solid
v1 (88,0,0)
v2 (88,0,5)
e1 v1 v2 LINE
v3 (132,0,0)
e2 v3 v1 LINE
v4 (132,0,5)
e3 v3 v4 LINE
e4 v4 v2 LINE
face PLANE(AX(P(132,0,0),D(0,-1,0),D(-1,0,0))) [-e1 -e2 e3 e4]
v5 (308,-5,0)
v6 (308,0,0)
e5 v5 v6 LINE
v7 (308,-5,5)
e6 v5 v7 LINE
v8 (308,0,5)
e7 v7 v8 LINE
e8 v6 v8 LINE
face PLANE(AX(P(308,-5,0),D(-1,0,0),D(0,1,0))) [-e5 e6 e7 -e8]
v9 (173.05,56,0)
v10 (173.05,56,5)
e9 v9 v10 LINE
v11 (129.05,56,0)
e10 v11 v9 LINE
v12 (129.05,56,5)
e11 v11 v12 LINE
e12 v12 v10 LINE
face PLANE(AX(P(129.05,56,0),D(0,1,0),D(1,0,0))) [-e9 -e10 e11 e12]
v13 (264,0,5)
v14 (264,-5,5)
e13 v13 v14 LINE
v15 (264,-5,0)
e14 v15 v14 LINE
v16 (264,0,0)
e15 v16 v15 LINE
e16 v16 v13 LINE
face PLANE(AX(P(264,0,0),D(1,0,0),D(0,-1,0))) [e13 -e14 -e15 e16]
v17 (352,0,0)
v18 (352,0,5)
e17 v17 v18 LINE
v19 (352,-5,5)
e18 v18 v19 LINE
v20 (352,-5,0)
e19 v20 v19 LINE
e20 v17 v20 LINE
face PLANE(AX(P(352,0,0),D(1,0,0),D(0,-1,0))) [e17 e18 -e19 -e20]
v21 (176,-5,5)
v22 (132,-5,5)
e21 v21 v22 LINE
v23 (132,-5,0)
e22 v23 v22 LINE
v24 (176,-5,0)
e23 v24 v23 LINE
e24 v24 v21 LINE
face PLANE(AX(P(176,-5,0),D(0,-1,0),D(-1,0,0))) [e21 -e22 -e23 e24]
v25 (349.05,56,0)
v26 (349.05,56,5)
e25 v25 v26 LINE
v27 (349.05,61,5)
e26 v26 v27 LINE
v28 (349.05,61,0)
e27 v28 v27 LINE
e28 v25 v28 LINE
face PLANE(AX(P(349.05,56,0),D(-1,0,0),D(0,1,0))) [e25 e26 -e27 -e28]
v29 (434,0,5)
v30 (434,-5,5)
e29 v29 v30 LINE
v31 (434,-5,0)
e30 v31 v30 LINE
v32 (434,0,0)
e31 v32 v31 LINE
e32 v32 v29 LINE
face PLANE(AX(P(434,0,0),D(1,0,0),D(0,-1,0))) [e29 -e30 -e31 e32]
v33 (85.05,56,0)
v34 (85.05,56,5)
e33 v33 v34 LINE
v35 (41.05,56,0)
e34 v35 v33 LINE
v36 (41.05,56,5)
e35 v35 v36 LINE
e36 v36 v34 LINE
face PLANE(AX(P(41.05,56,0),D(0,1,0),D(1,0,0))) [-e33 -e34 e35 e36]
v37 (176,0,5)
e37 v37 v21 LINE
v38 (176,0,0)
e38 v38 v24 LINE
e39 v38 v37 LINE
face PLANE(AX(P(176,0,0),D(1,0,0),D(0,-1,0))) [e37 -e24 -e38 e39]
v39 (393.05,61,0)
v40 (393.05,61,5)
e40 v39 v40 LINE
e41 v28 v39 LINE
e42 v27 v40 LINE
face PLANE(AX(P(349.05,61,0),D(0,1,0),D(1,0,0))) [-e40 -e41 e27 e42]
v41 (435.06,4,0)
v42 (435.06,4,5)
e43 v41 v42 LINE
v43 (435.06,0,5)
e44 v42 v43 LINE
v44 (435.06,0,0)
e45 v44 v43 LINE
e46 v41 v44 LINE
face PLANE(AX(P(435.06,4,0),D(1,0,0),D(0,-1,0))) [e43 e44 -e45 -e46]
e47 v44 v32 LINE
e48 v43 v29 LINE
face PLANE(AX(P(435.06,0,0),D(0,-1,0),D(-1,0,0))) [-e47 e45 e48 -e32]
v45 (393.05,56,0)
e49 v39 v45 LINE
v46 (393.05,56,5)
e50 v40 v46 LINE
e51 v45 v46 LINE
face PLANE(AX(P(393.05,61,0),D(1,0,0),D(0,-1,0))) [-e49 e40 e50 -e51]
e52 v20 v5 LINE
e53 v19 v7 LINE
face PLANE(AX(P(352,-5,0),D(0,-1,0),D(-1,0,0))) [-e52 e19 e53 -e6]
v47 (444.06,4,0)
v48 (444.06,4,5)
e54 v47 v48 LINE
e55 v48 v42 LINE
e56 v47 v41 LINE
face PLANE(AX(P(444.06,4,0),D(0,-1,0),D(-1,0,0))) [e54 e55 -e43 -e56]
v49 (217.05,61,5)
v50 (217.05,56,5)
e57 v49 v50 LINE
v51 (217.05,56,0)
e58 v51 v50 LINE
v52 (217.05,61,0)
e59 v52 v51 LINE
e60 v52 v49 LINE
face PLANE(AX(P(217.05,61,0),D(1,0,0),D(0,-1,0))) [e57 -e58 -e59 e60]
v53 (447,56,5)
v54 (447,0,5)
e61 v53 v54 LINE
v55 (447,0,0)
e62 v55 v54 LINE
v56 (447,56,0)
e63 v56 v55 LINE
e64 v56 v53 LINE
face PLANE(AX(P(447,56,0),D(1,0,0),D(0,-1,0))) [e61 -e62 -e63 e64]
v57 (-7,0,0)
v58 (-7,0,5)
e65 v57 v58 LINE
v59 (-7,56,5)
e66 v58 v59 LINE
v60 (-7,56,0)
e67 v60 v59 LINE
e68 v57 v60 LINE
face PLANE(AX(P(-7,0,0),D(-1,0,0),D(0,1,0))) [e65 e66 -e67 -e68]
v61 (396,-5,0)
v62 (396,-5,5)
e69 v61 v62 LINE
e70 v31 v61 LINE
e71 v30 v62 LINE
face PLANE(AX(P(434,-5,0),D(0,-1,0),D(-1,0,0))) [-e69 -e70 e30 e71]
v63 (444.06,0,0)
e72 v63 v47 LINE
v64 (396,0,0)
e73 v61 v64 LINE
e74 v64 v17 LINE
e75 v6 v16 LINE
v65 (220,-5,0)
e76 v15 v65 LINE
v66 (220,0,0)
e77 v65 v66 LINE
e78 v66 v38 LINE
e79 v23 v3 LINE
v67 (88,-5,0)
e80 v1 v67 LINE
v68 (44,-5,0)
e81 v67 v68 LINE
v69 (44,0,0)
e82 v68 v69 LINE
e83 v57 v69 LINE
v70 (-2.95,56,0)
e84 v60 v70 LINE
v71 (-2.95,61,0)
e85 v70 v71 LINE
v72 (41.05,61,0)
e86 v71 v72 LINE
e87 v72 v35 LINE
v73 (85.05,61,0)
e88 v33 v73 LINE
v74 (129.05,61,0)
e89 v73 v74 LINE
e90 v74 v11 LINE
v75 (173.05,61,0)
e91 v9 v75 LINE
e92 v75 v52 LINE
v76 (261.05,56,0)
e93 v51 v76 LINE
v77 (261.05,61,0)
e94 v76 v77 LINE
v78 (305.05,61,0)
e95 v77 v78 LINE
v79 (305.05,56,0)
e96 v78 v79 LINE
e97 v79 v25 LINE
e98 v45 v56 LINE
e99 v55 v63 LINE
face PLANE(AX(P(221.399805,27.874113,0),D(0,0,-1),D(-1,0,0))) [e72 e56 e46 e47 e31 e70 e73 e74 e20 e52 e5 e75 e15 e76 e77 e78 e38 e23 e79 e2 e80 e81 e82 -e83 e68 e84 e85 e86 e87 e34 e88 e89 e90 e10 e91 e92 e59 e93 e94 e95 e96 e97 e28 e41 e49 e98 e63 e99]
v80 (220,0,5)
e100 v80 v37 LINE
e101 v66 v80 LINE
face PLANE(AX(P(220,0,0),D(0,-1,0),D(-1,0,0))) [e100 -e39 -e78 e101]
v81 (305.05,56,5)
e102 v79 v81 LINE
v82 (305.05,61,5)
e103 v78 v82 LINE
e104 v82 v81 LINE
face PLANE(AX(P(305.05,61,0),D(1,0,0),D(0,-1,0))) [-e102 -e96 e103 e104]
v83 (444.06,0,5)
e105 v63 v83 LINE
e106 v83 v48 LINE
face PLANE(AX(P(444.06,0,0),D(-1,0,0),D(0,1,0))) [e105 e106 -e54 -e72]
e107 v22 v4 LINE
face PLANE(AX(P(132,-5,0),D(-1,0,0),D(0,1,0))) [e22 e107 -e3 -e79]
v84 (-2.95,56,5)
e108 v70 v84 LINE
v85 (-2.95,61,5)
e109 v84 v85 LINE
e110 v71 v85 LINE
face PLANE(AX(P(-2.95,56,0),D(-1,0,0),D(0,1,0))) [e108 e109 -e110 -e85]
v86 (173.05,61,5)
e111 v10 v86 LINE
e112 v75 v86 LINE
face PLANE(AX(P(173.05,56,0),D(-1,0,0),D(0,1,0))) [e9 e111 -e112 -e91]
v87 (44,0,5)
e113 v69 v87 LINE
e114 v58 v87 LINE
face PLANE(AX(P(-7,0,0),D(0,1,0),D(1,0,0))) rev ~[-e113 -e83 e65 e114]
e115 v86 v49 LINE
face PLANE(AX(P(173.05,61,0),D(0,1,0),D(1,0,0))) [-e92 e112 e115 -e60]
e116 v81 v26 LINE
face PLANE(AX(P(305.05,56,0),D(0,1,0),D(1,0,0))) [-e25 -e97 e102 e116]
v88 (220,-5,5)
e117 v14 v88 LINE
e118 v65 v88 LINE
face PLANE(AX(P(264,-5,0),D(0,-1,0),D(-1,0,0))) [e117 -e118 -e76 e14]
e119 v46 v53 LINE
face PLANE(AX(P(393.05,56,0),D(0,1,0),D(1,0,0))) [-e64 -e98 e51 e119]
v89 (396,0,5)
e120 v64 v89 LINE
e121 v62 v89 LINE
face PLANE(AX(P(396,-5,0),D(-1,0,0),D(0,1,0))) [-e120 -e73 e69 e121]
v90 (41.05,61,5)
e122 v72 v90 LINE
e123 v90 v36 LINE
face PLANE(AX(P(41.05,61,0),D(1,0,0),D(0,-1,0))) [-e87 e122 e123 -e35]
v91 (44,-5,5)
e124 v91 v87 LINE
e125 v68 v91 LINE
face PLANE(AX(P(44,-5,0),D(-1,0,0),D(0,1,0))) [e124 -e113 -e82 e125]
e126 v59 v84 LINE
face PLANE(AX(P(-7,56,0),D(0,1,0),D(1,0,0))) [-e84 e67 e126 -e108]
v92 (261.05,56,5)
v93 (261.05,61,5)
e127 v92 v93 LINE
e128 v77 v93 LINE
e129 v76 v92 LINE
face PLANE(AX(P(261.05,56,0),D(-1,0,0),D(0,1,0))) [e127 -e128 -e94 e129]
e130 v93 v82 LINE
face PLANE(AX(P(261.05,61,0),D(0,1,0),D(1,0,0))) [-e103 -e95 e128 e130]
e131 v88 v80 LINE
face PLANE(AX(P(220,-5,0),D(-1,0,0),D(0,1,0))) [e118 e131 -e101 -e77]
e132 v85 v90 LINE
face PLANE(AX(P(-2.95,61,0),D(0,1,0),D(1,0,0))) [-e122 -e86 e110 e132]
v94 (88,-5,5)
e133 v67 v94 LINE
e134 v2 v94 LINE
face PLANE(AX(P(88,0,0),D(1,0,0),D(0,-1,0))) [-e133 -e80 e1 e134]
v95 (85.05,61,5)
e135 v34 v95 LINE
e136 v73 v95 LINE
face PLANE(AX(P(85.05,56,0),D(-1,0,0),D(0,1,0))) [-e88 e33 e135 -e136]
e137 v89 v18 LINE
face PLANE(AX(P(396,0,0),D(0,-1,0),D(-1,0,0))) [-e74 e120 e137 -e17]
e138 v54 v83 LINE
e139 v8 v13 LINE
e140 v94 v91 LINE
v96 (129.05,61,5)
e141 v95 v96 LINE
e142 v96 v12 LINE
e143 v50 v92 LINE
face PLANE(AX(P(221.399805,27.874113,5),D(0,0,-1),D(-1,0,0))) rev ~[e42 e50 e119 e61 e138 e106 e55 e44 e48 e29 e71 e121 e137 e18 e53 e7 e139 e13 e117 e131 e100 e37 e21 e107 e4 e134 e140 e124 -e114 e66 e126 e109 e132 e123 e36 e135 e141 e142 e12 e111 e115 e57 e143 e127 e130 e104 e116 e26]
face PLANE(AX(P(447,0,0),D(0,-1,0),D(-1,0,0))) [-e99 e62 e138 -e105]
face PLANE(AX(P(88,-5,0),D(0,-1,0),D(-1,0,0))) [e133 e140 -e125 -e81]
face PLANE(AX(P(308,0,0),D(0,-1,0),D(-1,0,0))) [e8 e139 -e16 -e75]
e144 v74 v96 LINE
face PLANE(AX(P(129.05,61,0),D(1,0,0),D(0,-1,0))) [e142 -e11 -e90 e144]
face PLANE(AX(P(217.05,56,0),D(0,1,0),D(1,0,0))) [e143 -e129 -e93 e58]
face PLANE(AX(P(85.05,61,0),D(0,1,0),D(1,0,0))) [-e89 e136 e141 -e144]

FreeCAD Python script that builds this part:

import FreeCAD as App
import Part
import Sketcher

V = App.Vector

doc = App.newDocument("Part")
params = doc.addObject("Spreadsheet::Sheet", "Params")
for row, (alias, value) in enumerate([
    ("sketch1_width", "44 mm"),
    ("sketch1_width2", "51 mm"),
    ("sketch1_width3", "38 mm"),
    ("sketch1_width4", "9 mm"),
    ("sketch1_height", "5 mm"),
    ("pad1_length", "5 mm"),
], start=1):
    params.set(f"A{row}", alias)
    params.set(f"B{row}", "=" + value)
    params.setAlias(f"B{row}", alias)

body = doc.addObject("PartDesign::Body", "Body")

# Sketch on XY plane
sketch1 = body.newObject("Sketcher::SketchObject", "Sketch")
sketch1.AttachmentSupport = (doc.getObject("XY_Plane"), [""])
sketch1.MapMode = "FlatFace"
sketch1.addGeometry(Part.LineSegment(V(349.1, 56, 0), V(305.1, 56, 0)), False)
sketch1.addGeometry(Part.LineSegment(V(305.1, 56, 0), V(305.1, 61, 0)), False)
sketch1.addGeometry(Part.LineSegment(V(305.1, 61, 0), V(261.1, 61, 0)), False)
sketch1.addGeometry(Part.LineSegment(V(261.1, 61, 0), V(261.1, 56, 0)), False)
sketch1.addGeometry(Part.LineSegment(V(261.1, 56, 0), V(217.1, 56, 0)), False)
sketch1.addGeometry(Part.LineSegment(V(217.1, 56, 0), V(217.1, 61, 0)), False)
sketch1.addGeometry(Part.LineSegment(V(217.1, 61, 0), V(173.1, 61, 0)), False)
sketch1.addGeometry(Part.LineSegment(V(173.1, 61, 0), V(173.1, 56, 0)), False)
sketch1.addGeometry(Part.LineSegment(V(173.1, 56, 0), V(129.1, 56, 0)), False)
sketch1.addGeometry(Part.LineSegment(V(129.1, 56, 0), V(129.1, 61, 0)), False)
sketch1.addGeometry(Part.LineSegment(V(129.1, 61, 0), V(85, 61, 0)), False)
sketch1.addGeometry(Part.LineSegment(V(85, 61, 0), V(85, 56, 0)), False)
sketch1.addGeometry(Part.LineSegment(V(85, 56, 0), V(41, 56, 0)), False)
sketch1.addGeometry(Part.LineSegment(V(41, 56, 0), V(41, 61, 0)), False)
sketch1.addGeometry(Part.LineSegment(V(41, 61, 0), V(-3, 61, 0)), False)
sketch1.addGeometry(Part.LineSegment(V(-3, 61, 0), V(-3, 56, 0)), False)
sketch1.addGeometry(Part.LineSegment(V(-3, 56, 0), V(-7, 56, 0)), False)
sketch1.addGeometry(Part.LineSegment(V(-7, 56, 0), V(-7, 0, 0)), False)
sketch1.addGeometry(Part.LineSegment(V(-7, 0, 0), V(44, 0, 0)), False)
sketch1.addGeometry(Part.LineSegment(V(44, 0, 0), V(44, -5, 0)), False)
sketch1.addGeometry(Part.LineSegment(V(44, -5, 0), V(88, -5, 0)), False)
sketch1.addGeometry(Part.LineSegment(V(88, -5, 0), V(88, 0, 0)), False)
sketch1.addGeometry(Part.LineSegment(V(88, 0, 0), V(132, 0, 0)), False)
sketch1.addGeometry(Part.LineSegment(V(132, 0, 0), V(132, -5, 0)), False)
sketch1.addGeometry(Part.LineSegment(V(132, -5, 0), V(176, -5, 0)), False)
sketch1.addGeometry(Part.LineSegment(V(176, -5, 0), V(176, 0, 0)), False)
sketch1.addGeometry(Part.LineSegment(V(176, 0, 0), V(220, 0, 0)), False)
sketch1.addGeometry(Part.LineSegment(V(220, 0, 0), V(220, -5, 0)), False)
sketch1.addGeometry(Part.LineSegment(V(220, -5, 0), V(264, -5, 0)), False)
sketch1.addGeometry(Part.LineSegment(V(264, -5, 0), V(264, 0, 0)), False)
sketch1.addGeometry(Part.LineSegment(V(264, 0, 0), V(308, 0, 0)), False)
sketch1.addGeometry(Part.LineSegment(V(308, 0, 0), V(308, -5, 0)), False)
sketch1.addGeometry(Part.LineSegment(V(308, -5, 0), V(352, -5, 0)), False)
sketch1.addGeometry(Part.LineSegment(V(352, -5, 0), V(352, 0, 0)), False)
sketch1.addGeometry(Part.LineSegment(V(352, 0, 0), V(396, 0, 0)), False)
sketch1.addGeometry(Part.LineSegment(V(396, 0, 0), V(396, -5, 0)), False)
sketch1.addGeometry(Part.LineSegment(V(396, -5, 0), V(434, -5, 0)), False)
sketch1.addGeometry(Part.LineSegment(V(434, -5, 0), V(434, 0, 0)), False)
sketch1.addGeometry(Part.LineSegment(V(434, 0, 0), V(435.1, 0, 0)), False)
sketch1.addGeometry(Part.LineSegment(V(435.1, 0, 0), V(435.1, 4, 0)), False)
sketch1.addGeometry(Part.LineSegment(V(435.1, 4, 0), V(444.1, 4, 0)), False)
sketch1.addGeometry(Part.LineSegment(V(444.1, 4, 0), V(444.1, 0, 0)), False)
sketch1.addGeometry(Part.LineSegment(V(444.1, 0, 0), V(447, 0, 0)), False)
sketch1.addGeometry(Part.LineSegment(V(447, 0, 0), V(447, 56, 0)), False)
sketch1.addGeometry(Part.LineSegment(V(447, 56, 0), V(393.1, 56, 0)), False)
sketch1.addGeometry(Part.LineSegment(V(393.1, 56, 0), V(393.1, 61, 0)), False)
sketch1.addGeometry(Part.LineSegment(V(393.1, 61, 0), V(349.1, 61, 0)), False)
sketch1.addGeometry(Part.LineSegment(V(349.1, 61, 0), V(349.1, 56, 0)), False)
sketch1.addConstraint(Sketcher.Constraint("Coincident", 0, 2, 1, 1))
sketch1.addConstraint(Sketcher.Constraint("Coincident", 1, 2, 2, 1))
sketch1.addConstraint(Sketcher.Constraint("Coincident", 2, 2, 3, 1))
sketch1.addConstraint(Sketcher.Constraint("Coincident", 3, 2, 4, 1))
sketch1.addConstraint(Sketcher.Constraint("Coincident", 4, 2, 5, 1))
sketch1.addConstraint(Sketcher.Constraint("Coincident", 5, 2, 6, 1))
sketch1.addConstraint(Sketcher.Constraint("Coincident", 6, 2, 7, 1))
sketch1.addConstraint(Sketcher.Constraint("Coincident", 7, 2, 8, 1))
sketch1.addConstraint(Sketcher.Constraint("Coincident", 8, 2, 9, 1))
sketch1.addConstraint(Sketcher.Constraint("Coincident", 9, 2, 10, 1))
sketch1.addConstraint(Sketcher.Constraint("Coincident", 10, 2, 11, 1))
sketch1.addConstraint(Sketcher.Constraint("Coincident", 11, 2, 12, 1))
sketch1.addConstraint(Sketcher.Constraint("Coincident", 12, 2, 13, 1))
sketch1.addConstraint(Sketcher.Constraint("Coincident", 13, 2, 14, 1))
sketch1.addConstraint(Sketcher.Constraint("Coincident", 14, 2, 15, 1))
sketch1.addConstraint(Sketcher.Constraint("Coincident", 15, 2, 16, 1))
sketch1.addConstraint(Sketcher.Constraint("Coincident", 16, 2, 17, 1))
sketch1.addConstraint(Sketcher.Constraint("Coincident", 17, 2, 18, 1))
sketch1.addConstraint(Sketcher.Constraint("Coincident", 18, 2, 19, 1))
sketch1.addConstraint(Sketcher.Constraint("Coincident", 19, 2, 20, 1))
sketch1.addConstraint(Sketcher.Constraint("Coincident", 20, 2, 21, 1))
sketch1.addConstraint(Sketcher.Constraint("Coincident", 21, 2, 22, 1))
sketch1.addConstraint(Sketcher.Constraint("Coincident", 22, 2, 23, 1))
sketch1.addConstraint(Sketcher.Constraint("Coincident", 23, 2, 24, 1))
sketch1.addConstraint(Sketcher.Constraint("Coincident", 24, 2, 25, 1))
sketch1.addConstraint(Sketcher.Constraint("Coincident", 25, 2, 26, 1))
sketch1.addConstraint(Sketcher.Constraint("Coincident", 26, 2, 27, 1))
sketch1.addConstraint(Sketcher.Constraint("Coincident", 27, 2, 28, 1))
sketch1.addConstraint(Sketcher.Constraint("Coincident", 28, 2, 29, 1))
sketch1.addConstraint(Sketcher.Constraint("Coincident", 29, 2, 30, 1))
sketch1.addConstraint(Sketcher.Constraint("Coincident", 30, 2, 31, 1))
sketch1.addConstraint(Sketcher.Constraint("Coincident", 31, 2, 32, 1))
sketch1.addConstraint(Sketcher.Constraint("Coincident", 32, 2, 33, 1))
sketch1.addConstraint(Sketcher.Constraint("Coincident", 33, 2, 34, 1))
sketch1.addConstraint(Sketcher.Constraint("Coincident", 34, 2, 35, 1))
sketch1.addConstraint(Sketcher.Constraint("Coincident", 35, 2, 36, 1))
sketch1.addConstraint(Sketcher.Constraint("Coincident", 36, 2, 37, 1))
sketch1.addConstraint(Sketcher.Constraint("Coincident", 37, 2, 38, 1))
sketch1.addConstraint(Sketcher.Constraint("Coincident", 38, 2, 39, 1))
sketch1.addConstraint(Sketcher.Constraint("Coincident", 39, 2, 40, 1))
sketch1.addConstraint(Sketcher.Constraint("Coincident", 40, 2, 41, 1))
sketch1.addConstraint(Sketcher.Constraint("Coincident", 41, 2, 42, 1))
sketch1.addConstraint(Sketcher.Constraint("Coincident", 42, 2, 43, 1))
sketch1.addConstraint(Sketcher.Constraint("Coincident", 43, 2, 44, 1))
sketch1.addConstraint(Sketcher.Constraint("Coincident", 44, 2, 45, 1))
sketch1.addConstraint(Sketcher.Constraint("Coincident", 45, 2, 46, 1))
sketch1.addConstraint(Sketcher.Constraint("Coincident", 46, 2, 47, 1))
sketch1.addConstraint(Sketcher.Constraint("Coincident", 47, 2, 0, 1))
sketch1.addConstraint(Sketcher.Constraint("Horizontal", 0))
sketch1.addConstraint(Sketcher.Constraint("Vertical", 1))
sketch1.addConstraint(Sketcher.Constraint("Horizontal", 2))
sketch1.addConstraint(Sketcher.Constraint("Vertical", 3))
sketch1.addConstraint(Sketcher.Constraint("Horizontal", 4))
sketch1.addConstraint(Sketcher.Constraint("Vertical", 5))
sketch1.addConstraint(Sketcher.Constraint("Horizontal", 6))
sketch1.addConstraint(Sketcher.Constraint("Vertical", 7))
sketch1.addConstraint(Sketcher.Constraint("Horizontal", 8))
sketch1.addConstraint(Sketcher.Constraint("Vertical", 9))
sketch1.addConstraint(Sketcher.Constraint("Horizontal", 10))
sketch1.addConstraint(Sketcher.Constraint("Vertical", 11))
sketch1.addConstraint(Sketcher.Constraint("Horizontal", 12))
sketch1.addConstraint(Sketcher.Constraint("Vertical", 13))
sketch1.addConstraint(Sketcher.Constraint("Horizontal", 14))
sketch1.addConstraint(Sketcher.Constraint("Vertical", 15))
sketch1.addConstraint(Sketcher.Constraint("Horizontal", 16))
sketch1.addConstraint(Sketcher.Constraint("Vertical", 17))
sketch1.addConstraint(Sketcher.Constraint("Horizontal", 18))
sketch1.addConstraint(Sketcher.Constraint("Vertical", 19))
sketch1.addConstraint(Sketcher.Constraint("Horizontal", 20))
sketch1.addConstraint(Sketcher.Constraint("Vertical", 21))
sketch1.addConstraint(Sketcher.Constraint("Horizontal", 22))
sketch1.addConstraint(Sketcher.Constraint("Vertical", 23))
sketch1.addConstraint(Sketcher.Constraint("Horizontal", 24))
sketch1.addConstraint(Sketcher.Constraint("Vertical", 25))
sketch1.addConstraint(Sketcher.Constraint("Horizontal", 26))
sketch1.addConstraint(Sketcher.Constraint("Vertical", 27))
sketch1.addConstraint(Sketcher.Constraint("Horizontal", 28))
sketch1.addConstraint(Sketcher.Constraint("Vertical", 29))
sketch1.addConstraint(Sketcher.Constraint("Horizontal", 30))
sketch1.addConstraint(Sketcher.Constraint("Vertical", 31))
sketch1.addConstraint(Sketcher.Constraint("Horizontal", 32))
sketch1.addConstraint(Sketcher.Constraint("Vertical", 33))
sketch1.addConstraint(Sketcher.Constraint("Horizontal", 34))
sketch1.addConstraint(Sketcher.Constraint("Vertical", 35))
sketch1.addConstraint(Sketcher.Constraint("Horizontal", 36))
sketch1.addConstraint(Sketcher.Constraint("Vertical", 37))
sketch1.addConstraint(Sketcher.Constraint("Horizontal", 38))
sketch1.addConstraint(Sketcher.Constraint("Vertical", 39))
sketch1.addConstraint(Sketcher.Constraint("Horizontal", 40))
sketch1.addConstraint(Sketcher.Constraint("Vertical", 41))
sketch1.addConstraint(Sketcher.Constraint("Horizontal", 42))
sketch1.addConstraint(Sketcher.Constraint("Vertical", 43))
sketch1.addConstraint(Sketcher.Constraint("Horizontal", 44))
sketch1.addConstraint(Sketcher.Constraint("Vertical", 45))
sketch1.addConstraint(Sketcher.Constraint("Horizontal", 46))
sketch1.addConstraint(Sketcher.Constraint("Vertical", 47))
sketch1.addConstraint(Sketcher.Constraint("PointOnObject", 17, 2, -1))
sketch1.addConstraint(Sketcher.Constraint("PointOnObject", 21, 2, -1))
sketch1.addConstraint(Sketcher.Constraint("PointOnObject", 25, 2, -1))
sketch1.addConstraint(Sketcher.Constraint("PointOnObject", 29, 2, -1))
sketch1.addConstraint(Sketcher.Constraint("PointOnObject", 33, 2, -1))
sketch1.addConstraint(Sketcher.Constraint("PointOnObject", 37, 2, -1))
sketch1.addConstraint(Sketcher.Constraint("PointOnObject", 41, 2, -1))
sketch1.addConstraint(Sketcher.Constraint("Horizontal", 0, 2, 3, 2))
sketch1.addConstraint(Sketcher.Constraint("Horizontal", 2, 2, 5, 2))
sketch1.addConstraint(Sketcher.Constraint("Horizontal", 4, 2, 7, 2))
sketch1.addConstraint(Sketcher.Constraint("Horizontal", 6, 2, 9, 2))
sketch1.addConstraint(Sketcher.Constraint("Horizontal", 8, 2, 11, 2))
sketch1.addConstraint(Sketcher.Constraint("Horizontal", 10, 2, 13, 2))
sketch1.addConstraint(Sketcher.Constraint("Horizontal", 12, 2, 15, 2))
sketch1.addConstraint(Sketcher.Constraint("Horizontal", 20, 2, 23, 2))
sketch1.addConstraint(Sketcher.Constraint("Horizontal", 24, 2, 27, 2))
sketch1.addConstraint(Sketcher.Constraint("Horizontal", 28, 2, 31, 2))
sketch1.addConstraint(Sketcher.Constraint("Horizontal", 32, 2, 35, 2))
sketch1.addConstraint(Sketcher.Constraint("Horizontal", 16, 2, 43, 2))
sketch1.addConstraint(Sketcher.Constraint("Horizontal", 14, 2, 45, 2))
sketch1.addConstraint(Sketcher.Constraint("Equal", 0, 2))
sketch1.addConstraint(Sketcher.Constraint("Equal", 2, 4))
sketch1.addConstraint(Sketcher.Constraint("Equal", 4, 6))
sketch1.addConstraint(Sketcher.Constraint("Equal", 6, 8))
sketch1.addConstraint(Sketcher.Constraint("Equal", 8, 10))
sketch1.addConstraint(Sketcher.Constraint("Equal", 10, 12))
sketch1.addConstraint(Sketcher.Constraint("Equal", 12, 14))
sketch1.addConstraint(Sketcher.Constraint("Equal", 14, 20))
sketch1.addConstraint(Sketcher.Constraint("Equal", 20, 22))
sketch1.addConstraint(Sketcher.Constraint("Equal", 22, 24))
sketch1.addConstraint(Sketcher.Constraint("Equal", 24, 26))
sketch1.addConstraint(Sketcher.Constraint("Equal", 26, 28))
sketch1.addConstraint(Sketcher.Constraint("Equal", 28, 30))
sketch1.addConstraint(Sketcher.Constraint("Equal", 30, 32))
sketch1.addConstraint(Sketcher.Constraint("Equal", 32, 34))
sketch1.addConstraint(Sketcher.Constraint("Equal", 34, 46))
sketch1.addConstraint(Sketcher.Constraint("Equal", 15, 19))
sketch1.addConstraint(Sketcher.Constraint("DistanceX", 0, 2, 0, 1, 44.0))
sketch1.addConstraint(Sketcher.Constraint("DistanceX", 18, 1, 18, 2, 51.0))
sketch1.addConstraint(Sketcher.Constraint("DistanceX", 36, 1, 36, 2, 38.0))
sketch1.addConstraint(Sketcher.Constraint("DistanceX", 40, 1, 40, 2, 9.0))
sketch1.addConstraint(Sketcher.Constraint("DistanceY", 1, 1, 1, 2, 5.0))
sketch1.addConstraint(Sketcher.Constraint("DistanceY", 17, 2, 17, 1, 56.0))
sketch1.addConstraint(Sketcher.Constraint("DistanceY", 39, 1, 39, 2, 4.0))
sketch1.addConstraint(Sketcher.Constraint("DistanceX", 16, 2, -1, 1, 7.0))
sketch1.addConstraint(Sketcher.Constraint("DistanceX", -1, 1, 42, 2, 447.0))
sketch1.addConstraint(Sketcher.Constraint("DistanceX", 16, 2, 16, 1, 4.05))
sketch1.addConstraint(Sketcher.Constraint("DistanceX", 38, 1, 38, 2, 1.06))
sketch1.setExpression("Constraints[133]", "Params.sketch1_width")
sketch1.setExpression("Constraints[134]", "Params.sketch1_width2")
sketch1.setExpression("Constraints[135]", "Params.sketch1_width3")
sketch1.setExpression("Constraints[136]", "Params.sketch1_width4")
sketch1.setExpression("Constraints[137]", "Params.sketch1_height")
pad1 = body.newObject("PartDesign::Pad", "Pad")
pad1.Profile = sketch1
pad1.setExpression("Length", "Params.pad1_length")

doc.recompute()
